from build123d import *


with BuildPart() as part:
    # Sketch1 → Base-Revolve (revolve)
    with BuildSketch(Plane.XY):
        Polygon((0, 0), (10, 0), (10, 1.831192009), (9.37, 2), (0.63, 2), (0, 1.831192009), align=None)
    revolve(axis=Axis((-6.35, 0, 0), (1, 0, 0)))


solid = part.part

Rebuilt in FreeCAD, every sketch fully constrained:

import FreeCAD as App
import Part
import Sketcher

V = App.Vector
Q = App.Units.Quantity

doc = App.newDocument("Part")
body = doc.addObject("PartDesign::Body", "Body")

# Sketch on XY plane
sketch1 = body.newObject("Sketcher::SketchObject", "Sketch")
sketch1.AttachmentSupport = (doc.getObject("XY_Plane"), [""])
sketch1.MapMode = "FlatFace"
sketch1.addGeometry(Part.LineSegment(V(0, 0, 0), V(10, 0, 0)), False)
sketch1.addGeometry(Part.LineSegment(V(10, 0, 0), V(10, 1.8, 0)), False)
sketch1.addGeometry(Part.LineSegment(V(10, 1.8, 0), V(9.4, 2, 0)), False)
sketch1.addGeometry(Part.LineSegment(V(9.4, 2, 0), V(0.6, 2, 0)), False)
sketch1.addGeometry(Part.LineSegment(V(0.6, 2, 0), V(0, 1.8, 0)), False)
sketch1.addGeometry(Part.LineSegment(V(0, 1.8, 0), V(0, 0, 0)), False)
sketch1.addConstraint(Sketcher.Constraint("Coincident", 0, 2, 1, 1))
sketch1.addConstraint(Sketcher.Constraint("Coincident", 1, 2, 2, 1))
sketch1.addConstraint(Sketcher.Constraint("Coincident", 2, 2, 3, 1))
sketch1.addConstraint(Sketcher.Constraint("Coincident", 3, 2, 4, 1))
sketch1.addConstraint(Sketcher.Constraint("Coincident", 4, 2, 5, 1))
sketch1.addConstraint(Sketcher.Constraint("Coincident", 5, 2, 0, 1))
sketch1.addConstraint(Sketcher.Constraint("Horizontal", 0))
sketch1.addConstraint(Sketcher.Constraint("Vertical", 1))
sketch1.addConstraint(Sketcher.Constraint("Horizontal", 3))
sketch1.addConstraint(Sketcher.Constraint("Vertical", 5))
sketch1.addConstraint(Sketcher.Constraint("Coincident", 5, 2, -1, 1))
sketch1.addConstraint(Sketcher.Constraint("Horizontal", 1, 2, 4, 2))
sketch1.addConstraint(Sketcher.Constraint("Equal", 2, 4))
sketch1.addConstraint(Sketcher.Constraint("DistanceX", 0, 1, 0, 2, 10.0))
sketch1.addConstraint(Sketcher.Constraint("Angle", 2, Q("165 deg")))
sketch1.addConstraint(Sketcher.Constraint("DistanceY", -1, 1, 2, 2, 2.0))
sketch1.addConstraint(Sketcher.Constraint("DistanceX", 3, 2, 3, 1, 8.74))
revolution = body.newObject("PartDesign::Revolution", "Revolution")
revolution.Profile = sketch1
revolution.ReferenceAxis = (sketch1, ["H_Axis"])
revolution.Angle = 360

doc.recompute()
